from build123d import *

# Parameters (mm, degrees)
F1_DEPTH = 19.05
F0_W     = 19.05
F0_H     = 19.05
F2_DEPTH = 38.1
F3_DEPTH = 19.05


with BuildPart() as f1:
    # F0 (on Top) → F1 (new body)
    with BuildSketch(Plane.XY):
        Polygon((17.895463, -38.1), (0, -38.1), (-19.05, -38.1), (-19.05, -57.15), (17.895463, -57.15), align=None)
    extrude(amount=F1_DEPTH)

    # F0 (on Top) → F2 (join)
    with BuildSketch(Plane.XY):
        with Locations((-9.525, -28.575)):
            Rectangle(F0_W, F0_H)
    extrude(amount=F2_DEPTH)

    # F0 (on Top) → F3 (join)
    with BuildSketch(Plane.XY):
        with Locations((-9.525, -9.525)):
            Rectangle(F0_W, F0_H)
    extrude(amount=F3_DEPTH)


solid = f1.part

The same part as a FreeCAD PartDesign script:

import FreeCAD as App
import Part
import Sketcher
Q = App.Units.Quantity

doc = App.newDocument("Part")
body = doc.addObject("PartDesign::Body", "Body")

sketch1 = body.newObject("Sketcher::SketchObject", "Sketch")
sketch1.AttachmentSupport = (doc.getObject("XY_Plane"), [""])
sketch1.MapMode = "FlatFace"
sketch1.addGeometry(Part.LineSegment(App.Vector(17.895463, -38.1, 0), App.Vector(-19.05, -38.1, 0)), False)
sketch1.addGeometry(Part.LineSegment(App.Vector(-19.05, -38.1, 0), App.Vector(-19.05, -57.15, 0)), False)
sketch1.addGeometry(Part.LineSegment(App.Vector(-19.05, -57.15, 0), App.Vector(17.895463, -57.15, 0)), False)
sketch1.addGeometry(Part.LineSegment(App.Vector(17.895463, -57.15, 0), App.Vector(17.895463, -38.1, 0)), False)
sketch1.addConstraint(Sketcher.Constraint("Coincident", 0, 2, 1, 1))
sketch1.addConstraint(Sketcher.Constraint("Coincident", 1, 2, 2, 1))
sketch1.addConstraint(Sketcher.Constraint("Coincident", 2, 2, 3, 1))
sketch1.addConstraint(Sketcher.Constraint("Coincident", 3, 2, 0, 1))
sketch1.addConstraint(Sketcher.Constraint("Horizontal", 0))
sketch1.addConstraint(Sketcher.Constraint("Vertical", 1))
sketch1.addConstraint(Sketcher.Constraint("Horizontal", 2))
sketch1.addConstraint(Sketcher.Constraint("Vertical", 3))
sketch1.addConstraint(Sketcher.Constraint("DistanceY", 1, 2, 1, 1, Q("0.75 in")))
sketch1.addConstraint(Sketcher.Constraint("DistanceY", 0, 2, -1, 1, Q("1.5 in")))
sketch1.addConstraint(Sketcher.Constraint("DistanceX", 0, 2, -1, 1, Q("0.75 in")))
sketch1.addConstraint(Sketcher.Constraint("DistanceX", 0, 2, 0, 1, 36.945463))
pad1 = body.newObject("PartDesign::Pad", "Pad")
pad1.Profile = sketch1
pad1.Length = Q("0.75 in")

sketch2 = body.newObject("Sketcher::SketchObject", "Sketch001")
sketch2.AttachmentSupport = (doc.getObject("XY_Plane"), [""])
sketch2.MapMode = "FlatFace"
sketch2.addGeometry(Part.LineSegment(App.Vector(-19.05, -19.05, 0), App.Vector(-19.05, -38.1, 0)), False)
sketch2.addGeometry(Part.LineSegment(App.Vector(-19.05, -38.1, 0), App.Vector(0, -38.1, 0)), False)
sketch2.addGeometry(Part.LineSegment(App.Vector(0, -38.1, 0), App.Vector(0, -19.05, 0)), False)
sketch2.addGeometry(Part.LineSegment(App.Vector(0, -19.05, 0), App.Vector(-19.05, -19.05, 0)), False)
sketch2.addConstraint(Sketcher.Constraint("Coincident", 0, 2, 1, 1))
sketch2.addConstraint(Sketcher.Constraint("Coincident", 1, 2, 2, 1))
sketch2.addConstraint(Sketcher.Constraint("Coincident", 2, 2, 3, 1))
sketch2.addConstraint(Sketcher.Constraint("Coincident", 3, 2, 0, 1))
sketch2.addConstraint(Sketcher.Constraint("Vertical", 0))
sketch2.addConstraint(Sketcher.Constraint("Horizontal", 1))
sketch2.addConstraint(Sketcher.Constraint("Vertical", 2))
sketch2.addConstraint(Sketcher.Constraint("Horizontal", 3))
sketch2.addConstraint(Sketcher.Constraint("PointOnObject", 1, 2, -2))
sketch2.addConstraint(Sketcher.Constraint("Equal", 3, 0))
sketch2.addConstraint(Sketcher.Constraint("DistanceX", 1, 1, 1, 2, Q("0.75 in")))
sketch2.addConstraint(Sketcher.Constraint("DistanceY", 0, 2, -1, 1, Q("1.5 in")))
pad2 = body.newObject("PartDesign::Pad", "Pad001")
pad2.Profile = sketch2
pad2.Length = Q("1.5 in")

sketch3 = body.newObject("Sketcher::SketchObject", "Sketch002")
sketch3.AttachmentSupport = (doc.getObject("XY_Plane"), [""])
sketch3.MapMode = "FlatFace"
sketch3.addGeometry(Part.LineSegment(App.Vector(-19.05, 0, 0), App.Vector(-19.05, -19.05, 0)), False)
sketch3.addGeometry(Part.LineSegment(App.Vector(-19.05, -19.05, 0), App.Vector(0, -19.05, 0)), False)
sketch3.addGeometry(Part.LineSegment(App.Vector(0, -19.05, 0), App.Vector(0, 0, 0)), False)
sketch3.addGeometry(Part.LineSegment(App.Vector(0, 0, 0), App.Vector(-19.05, 0, 0)), False)
sketch3.addConstraint(Sketcher.Constraint("Coincident", 0, 2, 1, 1))
sketch3.addConstraint(Sketcher.Constraint("Coincident", 1, 2, 2, 1))
sketch3.addConstraint(Sketcher.Constraint("Coincident", 2, 2, 3, 1))
sketch3.addConstraint(Sketcher.Constraint("Coincident", 3, 2, 0, 1))
sketch3.addConstraint(Sketcher.Constraint("Vertical", 0))
sketch3.addConstraint(Sketcher.Constraint("Horizontal", 1))
sketch3.addConstraint(Sketcher.Constraint("Vertical", 2))
sketch3.addConstraint(Sketcher.Constraint("Horizontal", 3))
sketch3.addConstraint(Sketcher.Constraint("Coincident", 2, 2, -1, 1))
sketch3.addConstraint(Sketcher.Constraint("Equal", 3, 0))
sketch3.addConstraint(Sketcher.Constraint("DistanceX", 1, 1, 1, 2, Q("0.75 in")))
pad3 = body.newObject("PartDesign::Pad", "Pad002")
pad3.Profile = sketch3
pad3.Length = Q("0.75 in")

doc.recompute()
